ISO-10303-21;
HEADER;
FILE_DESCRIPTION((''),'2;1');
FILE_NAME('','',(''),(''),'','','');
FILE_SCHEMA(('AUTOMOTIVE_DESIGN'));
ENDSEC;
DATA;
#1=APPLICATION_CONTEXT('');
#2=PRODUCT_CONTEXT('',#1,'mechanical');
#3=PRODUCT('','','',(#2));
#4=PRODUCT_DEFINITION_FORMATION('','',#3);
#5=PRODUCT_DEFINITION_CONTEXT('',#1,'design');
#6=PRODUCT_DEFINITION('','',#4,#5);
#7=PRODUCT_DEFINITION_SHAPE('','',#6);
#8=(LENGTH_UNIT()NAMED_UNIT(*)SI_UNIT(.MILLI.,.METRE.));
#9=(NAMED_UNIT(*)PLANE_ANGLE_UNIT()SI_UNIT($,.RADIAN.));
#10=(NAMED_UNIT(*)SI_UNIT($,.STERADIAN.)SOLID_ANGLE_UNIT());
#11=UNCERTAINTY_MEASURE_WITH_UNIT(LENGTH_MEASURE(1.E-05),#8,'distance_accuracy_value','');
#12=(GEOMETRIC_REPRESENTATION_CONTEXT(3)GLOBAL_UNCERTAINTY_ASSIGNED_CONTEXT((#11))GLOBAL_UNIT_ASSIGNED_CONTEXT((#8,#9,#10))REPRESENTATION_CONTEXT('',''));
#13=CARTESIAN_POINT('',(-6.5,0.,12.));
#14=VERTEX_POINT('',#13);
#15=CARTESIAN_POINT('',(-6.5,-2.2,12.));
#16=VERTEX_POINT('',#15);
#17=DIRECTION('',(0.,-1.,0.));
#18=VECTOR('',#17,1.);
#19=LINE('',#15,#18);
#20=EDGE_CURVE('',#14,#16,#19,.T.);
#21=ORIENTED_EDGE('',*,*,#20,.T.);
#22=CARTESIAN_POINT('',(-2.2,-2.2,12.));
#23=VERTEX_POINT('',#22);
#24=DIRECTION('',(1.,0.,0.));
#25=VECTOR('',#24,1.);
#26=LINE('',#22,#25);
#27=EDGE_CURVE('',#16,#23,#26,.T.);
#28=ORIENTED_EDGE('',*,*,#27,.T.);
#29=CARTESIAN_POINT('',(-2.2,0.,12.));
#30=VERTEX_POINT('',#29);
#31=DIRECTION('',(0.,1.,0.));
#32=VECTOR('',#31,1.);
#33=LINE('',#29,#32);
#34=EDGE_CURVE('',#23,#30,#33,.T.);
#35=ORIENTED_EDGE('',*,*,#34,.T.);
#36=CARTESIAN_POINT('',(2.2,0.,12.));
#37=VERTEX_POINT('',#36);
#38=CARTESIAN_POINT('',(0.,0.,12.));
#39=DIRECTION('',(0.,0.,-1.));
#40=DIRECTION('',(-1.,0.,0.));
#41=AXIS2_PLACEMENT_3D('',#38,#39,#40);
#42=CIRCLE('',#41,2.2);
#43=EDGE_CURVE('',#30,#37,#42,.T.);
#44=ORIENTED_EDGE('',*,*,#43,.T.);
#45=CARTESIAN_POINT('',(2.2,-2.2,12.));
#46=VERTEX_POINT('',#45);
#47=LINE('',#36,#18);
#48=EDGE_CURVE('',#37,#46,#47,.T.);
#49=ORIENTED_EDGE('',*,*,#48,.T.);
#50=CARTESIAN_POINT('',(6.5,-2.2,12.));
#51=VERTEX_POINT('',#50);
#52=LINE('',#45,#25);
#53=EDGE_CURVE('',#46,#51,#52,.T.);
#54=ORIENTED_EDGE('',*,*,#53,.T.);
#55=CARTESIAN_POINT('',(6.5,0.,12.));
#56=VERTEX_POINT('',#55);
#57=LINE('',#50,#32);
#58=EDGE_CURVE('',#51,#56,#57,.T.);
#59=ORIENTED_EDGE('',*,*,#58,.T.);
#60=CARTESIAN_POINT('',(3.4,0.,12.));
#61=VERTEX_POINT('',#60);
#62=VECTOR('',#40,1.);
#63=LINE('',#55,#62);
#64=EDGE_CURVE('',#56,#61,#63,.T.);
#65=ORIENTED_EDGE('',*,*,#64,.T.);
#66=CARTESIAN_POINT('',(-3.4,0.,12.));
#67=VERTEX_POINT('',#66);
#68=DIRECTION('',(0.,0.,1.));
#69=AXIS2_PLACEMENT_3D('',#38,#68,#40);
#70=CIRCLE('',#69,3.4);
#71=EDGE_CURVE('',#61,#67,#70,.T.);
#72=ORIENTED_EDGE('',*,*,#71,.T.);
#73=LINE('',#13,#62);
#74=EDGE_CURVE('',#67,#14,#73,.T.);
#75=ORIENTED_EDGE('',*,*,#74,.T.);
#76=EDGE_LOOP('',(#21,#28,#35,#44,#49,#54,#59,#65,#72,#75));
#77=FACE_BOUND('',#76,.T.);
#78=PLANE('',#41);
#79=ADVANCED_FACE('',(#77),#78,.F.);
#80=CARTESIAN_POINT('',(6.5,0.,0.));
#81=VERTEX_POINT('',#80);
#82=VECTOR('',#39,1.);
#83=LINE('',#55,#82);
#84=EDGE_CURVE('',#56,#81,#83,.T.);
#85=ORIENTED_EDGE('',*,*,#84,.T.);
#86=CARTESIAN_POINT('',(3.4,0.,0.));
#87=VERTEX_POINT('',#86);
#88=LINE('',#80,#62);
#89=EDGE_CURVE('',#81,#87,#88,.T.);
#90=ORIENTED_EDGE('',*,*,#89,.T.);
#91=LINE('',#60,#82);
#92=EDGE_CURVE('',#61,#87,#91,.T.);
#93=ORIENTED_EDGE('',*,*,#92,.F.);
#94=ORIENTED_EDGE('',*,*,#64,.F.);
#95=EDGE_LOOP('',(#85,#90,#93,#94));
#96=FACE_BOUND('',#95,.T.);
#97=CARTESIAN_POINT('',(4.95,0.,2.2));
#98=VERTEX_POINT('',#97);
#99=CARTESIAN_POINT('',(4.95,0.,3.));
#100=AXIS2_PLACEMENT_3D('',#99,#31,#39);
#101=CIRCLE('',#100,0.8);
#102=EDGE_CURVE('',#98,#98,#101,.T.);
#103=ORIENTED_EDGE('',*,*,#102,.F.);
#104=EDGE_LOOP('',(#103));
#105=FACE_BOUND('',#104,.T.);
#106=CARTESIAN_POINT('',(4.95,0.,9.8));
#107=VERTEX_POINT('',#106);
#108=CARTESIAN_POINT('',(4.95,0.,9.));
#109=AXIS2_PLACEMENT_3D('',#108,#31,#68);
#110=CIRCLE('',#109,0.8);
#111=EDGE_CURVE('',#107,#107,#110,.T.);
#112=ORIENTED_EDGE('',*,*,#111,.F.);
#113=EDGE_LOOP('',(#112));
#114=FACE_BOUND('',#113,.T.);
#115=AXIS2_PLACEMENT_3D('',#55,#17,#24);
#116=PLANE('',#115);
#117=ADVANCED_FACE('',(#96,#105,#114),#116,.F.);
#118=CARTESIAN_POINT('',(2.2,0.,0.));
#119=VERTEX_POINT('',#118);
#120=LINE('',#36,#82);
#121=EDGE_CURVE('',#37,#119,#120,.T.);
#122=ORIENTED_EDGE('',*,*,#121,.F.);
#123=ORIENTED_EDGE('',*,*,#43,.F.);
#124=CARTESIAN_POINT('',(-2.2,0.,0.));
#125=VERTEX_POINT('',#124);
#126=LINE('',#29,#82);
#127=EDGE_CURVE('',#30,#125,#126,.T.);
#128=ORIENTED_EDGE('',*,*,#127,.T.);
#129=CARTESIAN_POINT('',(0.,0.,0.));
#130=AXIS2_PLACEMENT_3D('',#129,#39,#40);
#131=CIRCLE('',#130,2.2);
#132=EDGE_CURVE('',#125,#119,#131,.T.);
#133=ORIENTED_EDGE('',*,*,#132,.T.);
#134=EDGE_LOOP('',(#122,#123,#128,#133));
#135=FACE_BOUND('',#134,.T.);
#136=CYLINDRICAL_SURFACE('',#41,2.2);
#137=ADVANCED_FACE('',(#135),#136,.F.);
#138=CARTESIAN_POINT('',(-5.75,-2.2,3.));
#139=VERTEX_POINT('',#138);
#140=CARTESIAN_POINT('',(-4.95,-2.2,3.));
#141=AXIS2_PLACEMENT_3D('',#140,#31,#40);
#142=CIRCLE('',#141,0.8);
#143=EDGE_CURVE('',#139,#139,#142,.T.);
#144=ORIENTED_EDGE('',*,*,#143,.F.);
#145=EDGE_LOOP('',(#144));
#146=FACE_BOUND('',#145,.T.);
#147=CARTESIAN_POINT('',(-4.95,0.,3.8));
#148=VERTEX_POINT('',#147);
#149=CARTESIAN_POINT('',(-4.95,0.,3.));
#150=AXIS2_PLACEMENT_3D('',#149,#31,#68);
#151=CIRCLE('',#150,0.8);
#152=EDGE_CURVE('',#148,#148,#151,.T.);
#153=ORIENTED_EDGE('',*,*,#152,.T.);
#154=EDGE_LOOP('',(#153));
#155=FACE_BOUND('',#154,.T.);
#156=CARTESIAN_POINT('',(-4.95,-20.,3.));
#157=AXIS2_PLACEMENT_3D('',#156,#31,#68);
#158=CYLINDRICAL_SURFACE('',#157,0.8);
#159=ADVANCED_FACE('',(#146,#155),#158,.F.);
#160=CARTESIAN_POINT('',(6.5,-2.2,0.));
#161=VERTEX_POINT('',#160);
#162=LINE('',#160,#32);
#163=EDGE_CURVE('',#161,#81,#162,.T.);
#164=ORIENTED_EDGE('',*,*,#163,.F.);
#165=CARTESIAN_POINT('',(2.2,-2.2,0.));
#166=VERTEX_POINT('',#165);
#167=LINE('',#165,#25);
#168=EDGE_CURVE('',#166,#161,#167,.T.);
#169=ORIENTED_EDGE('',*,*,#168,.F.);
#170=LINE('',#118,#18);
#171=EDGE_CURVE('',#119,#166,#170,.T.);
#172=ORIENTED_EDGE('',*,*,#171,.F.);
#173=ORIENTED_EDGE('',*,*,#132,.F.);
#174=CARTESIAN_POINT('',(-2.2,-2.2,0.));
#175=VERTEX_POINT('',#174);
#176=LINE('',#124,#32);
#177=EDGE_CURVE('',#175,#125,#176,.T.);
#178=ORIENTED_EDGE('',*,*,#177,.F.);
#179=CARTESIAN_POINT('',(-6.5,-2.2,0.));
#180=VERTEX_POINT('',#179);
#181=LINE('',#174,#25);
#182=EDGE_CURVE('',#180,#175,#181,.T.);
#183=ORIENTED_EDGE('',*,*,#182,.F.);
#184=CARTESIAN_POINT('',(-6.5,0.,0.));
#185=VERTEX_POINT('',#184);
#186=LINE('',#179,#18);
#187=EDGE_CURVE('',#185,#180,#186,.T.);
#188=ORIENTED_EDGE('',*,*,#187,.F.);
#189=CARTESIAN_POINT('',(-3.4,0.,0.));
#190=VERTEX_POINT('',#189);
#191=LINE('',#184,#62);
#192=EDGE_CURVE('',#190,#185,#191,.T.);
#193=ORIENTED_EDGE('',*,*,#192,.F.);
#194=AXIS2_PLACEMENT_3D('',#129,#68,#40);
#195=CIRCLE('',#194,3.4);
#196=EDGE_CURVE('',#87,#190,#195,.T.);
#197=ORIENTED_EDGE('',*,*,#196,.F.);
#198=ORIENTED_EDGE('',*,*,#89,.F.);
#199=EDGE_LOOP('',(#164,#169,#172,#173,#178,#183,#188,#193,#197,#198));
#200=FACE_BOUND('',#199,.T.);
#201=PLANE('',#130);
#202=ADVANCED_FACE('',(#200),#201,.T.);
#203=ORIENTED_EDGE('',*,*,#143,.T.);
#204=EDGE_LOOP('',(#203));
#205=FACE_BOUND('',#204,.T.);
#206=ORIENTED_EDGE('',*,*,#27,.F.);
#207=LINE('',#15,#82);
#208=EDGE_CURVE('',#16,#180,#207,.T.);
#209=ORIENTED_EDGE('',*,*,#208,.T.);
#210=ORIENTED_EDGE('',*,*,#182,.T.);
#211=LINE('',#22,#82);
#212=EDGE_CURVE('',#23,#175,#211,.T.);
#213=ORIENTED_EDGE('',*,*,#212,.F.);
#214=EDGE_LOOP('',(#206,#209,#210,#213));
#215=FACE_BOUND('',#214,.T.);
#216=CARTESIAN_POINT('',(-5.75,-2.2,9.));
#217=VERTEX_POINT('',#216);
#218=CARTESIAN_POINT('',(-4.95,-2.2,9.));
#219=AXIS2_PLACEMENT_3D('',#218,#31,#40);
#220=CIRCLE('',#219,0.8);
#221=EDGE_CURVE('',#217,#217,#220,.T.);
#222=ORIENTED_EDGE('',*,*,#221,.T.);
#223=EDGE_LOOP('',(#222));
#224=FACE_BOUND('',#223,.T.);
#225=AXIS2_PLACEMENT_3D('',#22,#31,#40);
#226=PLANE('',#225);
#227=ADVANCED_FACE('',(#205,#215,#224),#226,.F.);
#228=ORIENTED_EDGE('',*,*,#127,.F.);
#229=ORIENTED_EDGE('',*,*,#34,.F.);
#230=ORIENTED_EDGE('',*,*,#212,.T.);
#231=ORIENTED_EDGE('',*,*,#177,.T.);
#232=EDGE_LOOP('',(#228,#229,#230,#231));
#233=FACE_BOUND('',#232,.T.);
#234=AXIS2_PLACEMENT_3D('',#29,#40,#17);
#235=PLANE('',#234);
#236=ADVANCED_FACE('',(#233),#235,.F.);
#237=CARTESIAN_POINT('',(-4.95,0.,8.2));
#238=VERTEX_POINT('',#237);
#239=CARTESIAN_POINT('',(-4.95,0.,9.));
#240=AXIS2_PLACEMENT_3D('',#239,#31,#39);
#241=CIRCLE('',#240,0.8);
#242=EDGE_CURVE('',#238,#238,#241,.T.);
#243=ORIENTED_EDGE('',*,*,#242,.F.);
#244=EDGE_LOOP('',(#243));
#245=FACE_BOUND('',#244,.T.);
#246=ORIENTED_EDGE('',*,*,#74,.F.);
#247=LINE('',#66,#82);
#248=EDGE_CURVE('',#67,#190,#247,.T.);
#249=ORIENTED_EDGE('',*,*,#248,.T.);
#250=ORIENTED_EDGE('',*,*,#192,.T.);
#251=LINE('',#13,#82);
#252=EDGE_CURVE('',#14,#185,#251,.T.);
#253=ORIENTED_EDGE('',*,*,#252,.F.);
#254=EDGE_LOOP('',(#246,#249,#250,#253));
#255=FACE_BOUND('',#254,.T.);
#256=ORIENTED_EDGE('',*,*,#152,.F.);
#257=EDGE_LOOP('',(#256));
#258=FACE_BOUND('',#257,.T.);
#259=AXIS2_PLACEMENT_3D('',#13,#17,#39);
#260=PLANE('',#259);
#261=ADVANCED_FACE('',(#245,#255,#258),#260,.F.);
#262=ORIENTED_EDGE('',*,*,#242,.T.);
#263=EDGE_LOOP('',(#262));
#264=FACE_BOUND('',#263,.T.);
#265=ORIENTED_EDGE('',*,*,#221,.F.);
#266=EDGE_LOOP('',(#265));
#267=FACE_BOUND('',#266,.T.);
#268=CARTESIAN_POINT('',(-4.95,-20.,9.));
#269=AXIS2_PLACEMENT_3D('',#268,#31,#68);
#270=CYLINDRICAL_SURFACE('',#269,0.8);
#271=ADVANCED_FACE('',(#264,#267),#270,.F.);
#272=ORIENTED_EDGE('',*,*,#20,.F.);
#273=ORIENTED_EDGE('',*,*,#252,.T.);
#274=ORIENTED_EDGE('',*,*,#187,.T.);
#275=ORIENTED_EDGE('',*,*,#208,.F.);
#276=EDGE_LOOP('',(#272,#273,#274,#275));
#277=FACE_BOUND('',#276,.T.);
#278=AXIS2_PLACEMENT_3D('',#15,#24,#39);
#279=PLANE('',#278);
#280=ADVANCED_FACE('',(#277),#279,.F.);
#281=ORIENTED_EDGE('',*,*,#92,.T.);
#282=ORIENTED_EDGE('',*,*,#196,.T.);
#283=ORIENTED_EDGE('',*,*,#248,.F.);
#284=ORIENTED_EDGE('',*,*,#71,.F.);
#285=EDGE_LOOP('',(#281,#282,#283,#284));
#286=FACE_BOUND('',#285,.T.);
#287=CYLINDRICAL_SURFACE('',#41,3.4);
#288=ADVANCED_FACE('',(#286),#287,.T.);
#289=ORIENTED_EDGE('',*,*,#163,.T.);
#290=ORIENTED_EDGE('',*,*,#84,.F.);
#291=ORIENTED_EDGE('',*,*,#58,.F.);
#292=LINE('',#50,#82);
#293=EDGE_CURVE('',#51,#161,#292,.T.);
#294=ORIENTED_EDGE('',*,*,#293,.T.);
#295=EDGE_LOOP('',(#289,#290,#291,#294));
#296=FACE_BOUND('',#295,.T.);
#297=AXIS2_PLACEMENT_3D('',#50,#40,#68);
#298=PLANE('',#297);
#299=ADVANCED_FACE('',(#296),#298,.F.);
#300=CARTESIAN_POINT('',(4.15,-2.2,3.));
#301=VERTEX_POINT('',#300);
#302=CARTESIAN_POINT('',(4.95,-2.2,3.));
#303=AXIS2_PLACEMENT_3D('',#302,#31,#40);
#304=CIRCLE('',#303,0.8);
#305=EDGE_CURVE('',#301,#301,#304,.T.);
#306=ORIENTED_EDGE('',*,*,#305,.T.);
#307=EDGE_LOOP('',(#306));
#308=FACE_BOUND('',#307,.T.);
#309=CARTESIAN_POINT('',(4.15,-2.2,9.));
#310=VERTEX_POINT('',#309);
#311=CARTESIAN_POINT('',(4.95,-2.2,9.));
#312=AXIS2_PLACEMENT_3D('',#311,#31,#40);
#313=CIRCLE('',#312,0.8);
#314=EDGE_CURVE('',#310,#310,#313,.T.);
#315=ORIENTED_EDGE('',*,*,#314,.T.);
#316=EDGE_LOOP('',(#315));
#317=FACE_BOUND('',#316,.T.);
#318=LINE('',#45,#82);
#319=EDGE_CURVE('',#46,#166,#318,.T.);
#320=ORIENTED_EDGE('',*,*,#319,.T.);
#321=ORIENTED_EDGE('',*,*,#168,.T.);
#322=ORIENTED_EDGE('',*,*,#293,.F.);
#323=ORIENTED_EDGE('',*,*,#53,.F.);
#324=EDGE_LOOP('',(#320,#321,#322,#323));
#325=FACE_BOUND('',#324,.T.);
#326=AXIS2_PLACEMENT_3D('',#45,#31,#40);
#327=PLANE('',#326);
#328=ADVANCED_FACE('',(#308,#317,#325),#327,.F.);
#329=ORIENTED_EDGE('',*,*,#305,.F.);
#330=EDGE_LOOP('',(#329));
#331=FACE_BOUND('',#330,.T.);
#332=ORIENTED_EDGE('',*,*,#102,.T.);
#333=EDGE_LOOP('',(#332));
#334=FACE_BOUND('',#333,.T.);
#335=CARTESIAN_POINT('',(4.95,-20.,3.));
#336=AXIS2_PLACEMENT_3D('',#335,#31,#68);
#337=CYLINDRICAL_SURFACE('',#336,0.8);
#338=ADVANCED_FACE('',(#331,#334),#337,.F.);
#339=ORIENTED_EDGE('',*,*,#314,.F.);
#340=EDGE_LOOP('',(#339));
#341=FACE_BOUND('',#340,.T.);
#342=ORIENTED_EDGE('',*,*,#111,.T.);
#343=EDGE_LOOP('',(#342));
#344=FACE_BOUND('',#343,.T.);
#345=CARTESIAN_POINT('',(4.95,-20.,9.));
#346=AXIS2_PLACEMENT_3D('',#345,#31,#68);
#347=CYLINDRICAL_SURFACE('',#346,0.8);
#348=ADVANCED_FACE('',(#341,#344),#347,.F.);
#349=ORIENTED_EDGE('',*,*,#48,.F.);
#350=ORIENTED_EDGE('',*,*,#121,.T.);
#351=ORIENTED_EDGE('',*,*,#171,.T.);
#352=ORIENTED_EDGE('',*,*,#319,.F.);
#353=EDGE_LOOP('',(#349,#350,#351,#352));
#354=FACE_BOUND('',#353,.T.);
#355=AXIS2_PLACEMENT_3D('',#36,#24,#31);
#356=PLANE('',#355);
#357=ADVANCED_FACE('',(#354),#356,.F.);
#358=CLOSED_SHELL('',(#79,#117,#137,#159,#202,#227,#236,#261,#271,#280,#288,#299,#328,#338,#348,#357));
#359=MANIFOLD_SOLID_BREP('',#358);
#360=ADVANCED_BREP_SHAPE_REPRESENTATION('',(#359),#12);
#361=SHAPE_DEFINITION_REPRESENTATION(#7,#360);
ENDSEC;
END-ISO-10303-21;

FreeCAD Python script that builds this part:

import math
import FreeCAD as App
import Part
import Sketcher

V = App.Vector
Q = App.Units.Quantity

doc = App.newDocument("Part")
body = doc.addObject("PartDesign::Body", "Body")

# Sketch on XY plane
sketch1 = body.newObject("Sketcher::SketchObject", "Sketch")
sketch1.AttachmentSupport = (doc.getObject("XY_Plane"), [""])
sketch1.MapMode = "FlatFace"
sketch1.addGeometry(Part.LineSegment(V(-2.2, -2.2, 0), V(-2.2, 0, 0)), False)
sketch1.addGeometry(Part.ArcOfCircle(Part.Circle(V(0, 0, 0), V(0, 0, 1), 2.2), math.radians(0), math.radians(180)), False)
sketch1.addGeometry(Part.LineSegment(V(2.2, 0, 0), V(2.2, -2.2, 0)), False)
sketch1.addGeometry(Part.LineSegment(V(2.2, -2.2, 0), V(6.5, -2.2, 0)), False)
sketch1.addGeometry(Part.LineSegment(V(6.5, -2.2, 0), V(6.5, 0, 0)), False)
sketch1.addGeometry(Part.LineSegment(V(6.5, 0, 0), V(3.4, 0, 0)), False)
sketch1.addGeometry(Part.ArcOfCircle(Part.Circle(V(0, 0, 0), V(0, 0, 1), 3.4), math.radians(0), math.radians(180)), False)
sketch1.addGeometry(Part.LineSegment(V(-3.4, 0, 0), V(-6.5, 0, 0)), False)
sketch1.addGeometry(Part.LineSegment(V(-6.5, 0, 0), V(-6.5, -2.2, 0)), False)
sketch1.addGeometry(Part.LineSegment(V(-6.5, -2.2, 0), V(-2.2, -2.2, 0)), False)
sketch1.addConstraint(Sketcher.Constraint("Tangent", 0, 2, 1, 2))
sketch1.addConstraint(Sketcher.Constraint("Tangent", 1, 1, 2, 1))
sketch1.addConstraint(Sketcher.Constraint("Coincident", 2, 2, 3, 1))
sketch1.addConstraint(Sketcher.Constraint("Coincident", 3, 2, 4, 1))
sketch1.addConstraint(Sketcher.Constraint("Coincident", 4, 2, 5, 1))
sketch1.addConstraint(Sketcher.Constraint("Coincident", 5, 2, 6, 1))
sketch1.addConstraint(Sketcher.Constraint("Coincident", 6, 2, 7, 1))
sketch1.addConstraint(Sketcher.Constraint("Coincident", 7, 2, 8, 1))
sketch1.addConstraint(Sketcher.Constraint("Coincident", 8, 2, 9, 1))
sketch1.addConstraint(Sketcher.Constraint("Coincident", 9, 2, 0, 1))
sketch1.addConstraint(Sketcher.Constraint("Vertical", 0))
sketch1.addConstraint(Sketcher.Constraint("Vertical", 2))
sketch1.addConstraint(Sketcher.Constraint("Horizontal", 3))
sketch1.addConstraint(Sketcher.Constraint("Vertical", 4))
sketch1.addConstraint(Sketcher.Constraint("Horizontal", 5))
sketch1.addConstraint(Sketcher.Constraint("Horizontal", 7))
sketch1.addConstraint(Sketcher.Constraint("Vertical", 8))
sketch1.addConstraint(Sketcher.Constraint("Horizontal", 9))
sketch1.addConstraint(Sketcher.Constraint("Coincident", 1, 3, -1, 1))
sketch1.addConstraint(Sketcher.Constraint("Coincident", 6, 3, -1, 1))
sketch1.addConstraint(Sketcher.Constraint("Symmetric", 4, 2, 7, 2, -1, 1))
sketch1.addConstraint(Sketcher.Constraint("PointOnObject", 4, 2, -1))
sketch1.addConstraint(Sketcher.Constraint("Horizontal", 3, 2, 8, 2))
sketch1.addConstraint(Sketcher.Constraint("Radius", 1, Q("2.2 mm")))
sketch1.addConstraint(Sketcher.Constraint("Radius", 6, Q("3.4 mm")))
sketch1.addConstraint(Sketcher.Constraint("DistanceX", 3, 1, 3, 2, Q("4.3 mm")))
sketch1.addConstraint(Sketcher.Constraint("DistanceY", 0, 1, 0, 2, Q("2.2 mm")))
pad1 = body.newObject("PartDesign::Pad", "Pad")
pad1.Profile = sketch1
pad1.Length = 12

# Sketch on XZ plane
sketch2 = body.newObject("Sketcher::SketchObject", "Sketch001")
sketch2.AttachmentSupport = (doc.getObject("XZ_Plane"), [""])
sketch2.MapMode = "FlatFace"
sketch2.addGeometry(Part.Circle(V(-5, 3, 0), V(0, 0, 1), 0.8), False)
sketch2.addGeometry(Part.Circle(V(-5, 9, 0), V(0, 0, 1), 0.8), False)
sketch2.addGeometry(Part.Circle(V(5, 3, 0), V(0, 0, 1), 0.8), False)
sketch2.addGeometry(Part.Circle(V(5, 9, 0), V(0, 0, 1), 0.8), False)
sketch2.addConstraint(Sketcher.Constraint("Equal", 0, 1))
sketch2.addConstraint(Sketcher.Constraint("Equal", 1, 2))
sketch2.addConstraint(Sketcher.Constraint("Equal", 2, 3))
sketch2.addConstraint(Sketcher.Constraint("Symmetric", 0, 3, 2, 3, -2))
sketch2.addConstraint(Sketcher.Constraint("Symmetric", 1, 3, 3, 3, -2))
sketch2.addConstraint(Sketcher.Constraint("Vertical", 0, 3, 1, 3))
sketch2.addConstraint(Sketcher.Constraint("Diameter", 0, Q("1.6 mm")))
sketch2.addConstraint(Sketcher.Constraint("DistanceY", -1, 1, 0, 3, Q("3 mm")))
sketch2.addConstraint(Sketcher.Constraint("DistanceY", -1, 1, 1, 3, Q("9 mm")))
sketch2.addConstraint(Sketcher.Constraint("DistanceX", 0, 3, 2, 3, Q("9.9 mm")))
pocket1 = body.newObject("PartDesign::Pocket", "Pocket")
pocket1.Profile = sketch2
pocket1.Length = 20
pocket1.Reversed = True

doc.recompute()
